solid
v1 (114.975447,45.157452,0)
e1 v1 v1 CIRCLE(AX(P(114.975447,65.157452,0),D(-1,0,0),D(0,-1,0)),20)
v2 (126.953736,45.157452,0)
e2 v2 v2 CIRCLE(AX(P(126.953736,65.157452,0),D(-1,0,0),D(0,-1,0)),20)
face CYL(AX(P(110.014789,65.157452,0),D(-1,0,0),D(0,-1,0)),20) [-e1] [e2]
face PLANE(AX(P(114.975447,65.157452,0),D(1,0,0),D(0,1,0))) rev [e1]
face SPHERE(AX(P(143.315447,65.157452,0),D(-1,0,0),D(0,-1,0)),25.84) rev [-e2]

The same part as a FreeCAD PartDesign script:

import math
import FreeCAD as App
import Part
import Sketcher
from FreeCAD import Vector

doc = App.newDocument("Part")
params = doc.addObject("Spreadsheet::Sheet", "Params")
for row, (alias, value) in enumerate([
    ("sketch1_height", "20 mm"),
    ("sketch1_radius", "25.84 mm"),
    ("sketch1_width", "2.5 mm"),
    ("revolution_angle", "360 deg"),
], start=1):
    params.set(f"A{row}", alias)
    params.set(f"B{row}", "=" + value)
    params.setAlias(f"B{row}", alias)

body = doc.addObject("PartDesign::Body", "Body")

# Sketch on XY plane
sketch1 = doc.addObject("Sketcher::SketchObject", "Sketch")
body.addObject(sketch1)
sketch1.AttachmentSupport = (doc.XY_Plane, [""])
sketch1.MapMode = "FlatFace"
sketch1.addGeometry([
    Part.LineSegment(Vector(115, 85.2, 0), Vector(115, 65.2, 0)),
    Part.LineSegment(Vector(115, 65.2, 0), Vector(117.5, 65.2, 0)),
    Part.ArcOfCircle(Part.Circle(Vector(143.3, 65.2, 0), Vector(0, 0, 1), 25.8), math.radians(129), math.radians(180)),
    Part.LineSegment(Vector(127, 85.2, 0), Vector(115, 85.2, 0)),
], False)
sketch1.addGeometry(Part.LineSegment(Vector(115, 65.2, 0), Vector(143.3, 65.2, 0)), True)  # axis
sketch1.addConstraint([
    Sketcher.Constraint("Coincident", 0, 2, 1, 1),
    Sketcher.Constraint("Coincident", 1, 2, 2, 2),
    Sketcher.Constraint("Coincident", 2, 1, 3, 1),
    Sketcher.Constraint("Coincident", 3, 2, 0, 1),
    Sketcher.Constraint("Vertical", 0),
    Sketcher.Constraint("Horizontal", 1),
    Sketcher.Constraint("Horizontal", 3),
    Sketcher.Constraint("Horizontal", 4),
    Sketcher.Constraint("Coincident", 4, 1, 0, 2),
    Sketcher.Constraint("Coincident", 4, 2, 2, 3),
    Sketcher.Constraint("DistanceY", 0, 2, 0, 1, 20.0),
    Sketcher.Constraint("Radius", 2, 25.84),
    Sketcher.Constraint("DistanceX", 1, 1, 1, 2, 2.5),
    Sketcher.Constraint("DistanceY", -1, 1, 2, 3, 65.157452),
    Sketcher.Constraint("DistanceX", -1, 1, 2, 3, 143.315447),
])
sketch1.setExpression("Constraints[10]", "Params.sketch1_height")
sketch1.setExpression("Constraints[11]", "Params.sketch1_radius")
sketch1.setExpression("Constraints[12]", "Params.sketch1_width")
revolution = doc.addObject("PartDesign::Revolution", "Revolution")
body.addObject(revolution)
revolution.Profile = sketch1
revolution.ReferenceAxis = (sketch1, ["Axis0"])
revolution.setExpression("Angle", "Params.revolution_angle")

doc.recompute()
